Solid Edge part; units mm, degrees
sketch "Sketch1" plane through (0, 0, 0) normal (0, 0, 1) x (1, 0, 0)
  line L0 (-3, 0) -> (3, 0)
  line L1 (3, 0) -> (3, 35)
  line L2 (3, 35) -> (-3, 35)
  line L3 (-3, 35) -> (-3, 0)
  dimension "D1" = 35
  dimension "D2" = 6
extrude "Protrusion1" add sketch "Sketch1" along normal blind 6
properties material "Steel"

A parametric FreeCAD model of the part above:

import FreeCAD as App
import Part
import Sketcher
Q = App.Units.Quantity


def add_polygon(sketch, points):
    """Adds a closed chain of lines whose ends are joined by coincident constraints."""
    first, n = sketch.GeometryCount, len(points)
    for a, b in zip(points, points[1:] + points[:1]):
        sketch.addGeometry(Part.LineSegment(App.Vector(*a, 0), App.Vector(*b, 0)), False)
    for i in range(n):
        sketch.addConstraint(Sketcher.Constraint("Coincident", first + i, 2, first + (i + 1) % n, 1))

doc = App.newDocument("Part")
params = doc.addObject("Spreadsheet::Sheet", "Params")
for row, (alias, value) in enumerate([
    ("sketch1_height", "35 mm"),
    ("pad1_length", "6 mm"),
], start=1):
    params.set(f"A{row}", alias)
    params.set(f"B{row}", "=" + value)
    params.setAlias(f"B{row}", alias)

body = doc.addObject("PartDesign::Body", "Body")

sketch1 = body.newObject("Sketcher::SketchObject", "Sketch")
sketch1.AttachmentSupport = (doc.getObject("XY_Plane"), [""])
sketch1.MapMode = "FlatFace"
add_polygon(sketch1, [(-3, 35), (-3, 0), (3, 0), (3, 35)])
sketch1.addConstraint([
    Sketcher.Constraint("Vertical", 0),
    Sketcher.Constraint("Horizontal", 1),
    Sketcher.Constraint("Vertical", 2),
    Sketcher.Constraint("Horizontal", 3),
    Sketcher.Constraint("Symmetric", 0, 2, 1, 2, -1, 1),
    Sketcher.Constraint("DistanceX", 0, 2, -1, 1, Q("3 mm")),
    Sketcher.Constraint("DistanceY", 0, 2, 0, 1, Q("35 mm")),
])
sketch1.setExpression("Constraints[10]", "Params.sketch1_height")
pad1 = body.newObject("PartDesign::Pad", "Pad")
pad1.Profile = sketch1
pad1.setExpression("Length", "Params.pad1_length")

doc.recompute()
